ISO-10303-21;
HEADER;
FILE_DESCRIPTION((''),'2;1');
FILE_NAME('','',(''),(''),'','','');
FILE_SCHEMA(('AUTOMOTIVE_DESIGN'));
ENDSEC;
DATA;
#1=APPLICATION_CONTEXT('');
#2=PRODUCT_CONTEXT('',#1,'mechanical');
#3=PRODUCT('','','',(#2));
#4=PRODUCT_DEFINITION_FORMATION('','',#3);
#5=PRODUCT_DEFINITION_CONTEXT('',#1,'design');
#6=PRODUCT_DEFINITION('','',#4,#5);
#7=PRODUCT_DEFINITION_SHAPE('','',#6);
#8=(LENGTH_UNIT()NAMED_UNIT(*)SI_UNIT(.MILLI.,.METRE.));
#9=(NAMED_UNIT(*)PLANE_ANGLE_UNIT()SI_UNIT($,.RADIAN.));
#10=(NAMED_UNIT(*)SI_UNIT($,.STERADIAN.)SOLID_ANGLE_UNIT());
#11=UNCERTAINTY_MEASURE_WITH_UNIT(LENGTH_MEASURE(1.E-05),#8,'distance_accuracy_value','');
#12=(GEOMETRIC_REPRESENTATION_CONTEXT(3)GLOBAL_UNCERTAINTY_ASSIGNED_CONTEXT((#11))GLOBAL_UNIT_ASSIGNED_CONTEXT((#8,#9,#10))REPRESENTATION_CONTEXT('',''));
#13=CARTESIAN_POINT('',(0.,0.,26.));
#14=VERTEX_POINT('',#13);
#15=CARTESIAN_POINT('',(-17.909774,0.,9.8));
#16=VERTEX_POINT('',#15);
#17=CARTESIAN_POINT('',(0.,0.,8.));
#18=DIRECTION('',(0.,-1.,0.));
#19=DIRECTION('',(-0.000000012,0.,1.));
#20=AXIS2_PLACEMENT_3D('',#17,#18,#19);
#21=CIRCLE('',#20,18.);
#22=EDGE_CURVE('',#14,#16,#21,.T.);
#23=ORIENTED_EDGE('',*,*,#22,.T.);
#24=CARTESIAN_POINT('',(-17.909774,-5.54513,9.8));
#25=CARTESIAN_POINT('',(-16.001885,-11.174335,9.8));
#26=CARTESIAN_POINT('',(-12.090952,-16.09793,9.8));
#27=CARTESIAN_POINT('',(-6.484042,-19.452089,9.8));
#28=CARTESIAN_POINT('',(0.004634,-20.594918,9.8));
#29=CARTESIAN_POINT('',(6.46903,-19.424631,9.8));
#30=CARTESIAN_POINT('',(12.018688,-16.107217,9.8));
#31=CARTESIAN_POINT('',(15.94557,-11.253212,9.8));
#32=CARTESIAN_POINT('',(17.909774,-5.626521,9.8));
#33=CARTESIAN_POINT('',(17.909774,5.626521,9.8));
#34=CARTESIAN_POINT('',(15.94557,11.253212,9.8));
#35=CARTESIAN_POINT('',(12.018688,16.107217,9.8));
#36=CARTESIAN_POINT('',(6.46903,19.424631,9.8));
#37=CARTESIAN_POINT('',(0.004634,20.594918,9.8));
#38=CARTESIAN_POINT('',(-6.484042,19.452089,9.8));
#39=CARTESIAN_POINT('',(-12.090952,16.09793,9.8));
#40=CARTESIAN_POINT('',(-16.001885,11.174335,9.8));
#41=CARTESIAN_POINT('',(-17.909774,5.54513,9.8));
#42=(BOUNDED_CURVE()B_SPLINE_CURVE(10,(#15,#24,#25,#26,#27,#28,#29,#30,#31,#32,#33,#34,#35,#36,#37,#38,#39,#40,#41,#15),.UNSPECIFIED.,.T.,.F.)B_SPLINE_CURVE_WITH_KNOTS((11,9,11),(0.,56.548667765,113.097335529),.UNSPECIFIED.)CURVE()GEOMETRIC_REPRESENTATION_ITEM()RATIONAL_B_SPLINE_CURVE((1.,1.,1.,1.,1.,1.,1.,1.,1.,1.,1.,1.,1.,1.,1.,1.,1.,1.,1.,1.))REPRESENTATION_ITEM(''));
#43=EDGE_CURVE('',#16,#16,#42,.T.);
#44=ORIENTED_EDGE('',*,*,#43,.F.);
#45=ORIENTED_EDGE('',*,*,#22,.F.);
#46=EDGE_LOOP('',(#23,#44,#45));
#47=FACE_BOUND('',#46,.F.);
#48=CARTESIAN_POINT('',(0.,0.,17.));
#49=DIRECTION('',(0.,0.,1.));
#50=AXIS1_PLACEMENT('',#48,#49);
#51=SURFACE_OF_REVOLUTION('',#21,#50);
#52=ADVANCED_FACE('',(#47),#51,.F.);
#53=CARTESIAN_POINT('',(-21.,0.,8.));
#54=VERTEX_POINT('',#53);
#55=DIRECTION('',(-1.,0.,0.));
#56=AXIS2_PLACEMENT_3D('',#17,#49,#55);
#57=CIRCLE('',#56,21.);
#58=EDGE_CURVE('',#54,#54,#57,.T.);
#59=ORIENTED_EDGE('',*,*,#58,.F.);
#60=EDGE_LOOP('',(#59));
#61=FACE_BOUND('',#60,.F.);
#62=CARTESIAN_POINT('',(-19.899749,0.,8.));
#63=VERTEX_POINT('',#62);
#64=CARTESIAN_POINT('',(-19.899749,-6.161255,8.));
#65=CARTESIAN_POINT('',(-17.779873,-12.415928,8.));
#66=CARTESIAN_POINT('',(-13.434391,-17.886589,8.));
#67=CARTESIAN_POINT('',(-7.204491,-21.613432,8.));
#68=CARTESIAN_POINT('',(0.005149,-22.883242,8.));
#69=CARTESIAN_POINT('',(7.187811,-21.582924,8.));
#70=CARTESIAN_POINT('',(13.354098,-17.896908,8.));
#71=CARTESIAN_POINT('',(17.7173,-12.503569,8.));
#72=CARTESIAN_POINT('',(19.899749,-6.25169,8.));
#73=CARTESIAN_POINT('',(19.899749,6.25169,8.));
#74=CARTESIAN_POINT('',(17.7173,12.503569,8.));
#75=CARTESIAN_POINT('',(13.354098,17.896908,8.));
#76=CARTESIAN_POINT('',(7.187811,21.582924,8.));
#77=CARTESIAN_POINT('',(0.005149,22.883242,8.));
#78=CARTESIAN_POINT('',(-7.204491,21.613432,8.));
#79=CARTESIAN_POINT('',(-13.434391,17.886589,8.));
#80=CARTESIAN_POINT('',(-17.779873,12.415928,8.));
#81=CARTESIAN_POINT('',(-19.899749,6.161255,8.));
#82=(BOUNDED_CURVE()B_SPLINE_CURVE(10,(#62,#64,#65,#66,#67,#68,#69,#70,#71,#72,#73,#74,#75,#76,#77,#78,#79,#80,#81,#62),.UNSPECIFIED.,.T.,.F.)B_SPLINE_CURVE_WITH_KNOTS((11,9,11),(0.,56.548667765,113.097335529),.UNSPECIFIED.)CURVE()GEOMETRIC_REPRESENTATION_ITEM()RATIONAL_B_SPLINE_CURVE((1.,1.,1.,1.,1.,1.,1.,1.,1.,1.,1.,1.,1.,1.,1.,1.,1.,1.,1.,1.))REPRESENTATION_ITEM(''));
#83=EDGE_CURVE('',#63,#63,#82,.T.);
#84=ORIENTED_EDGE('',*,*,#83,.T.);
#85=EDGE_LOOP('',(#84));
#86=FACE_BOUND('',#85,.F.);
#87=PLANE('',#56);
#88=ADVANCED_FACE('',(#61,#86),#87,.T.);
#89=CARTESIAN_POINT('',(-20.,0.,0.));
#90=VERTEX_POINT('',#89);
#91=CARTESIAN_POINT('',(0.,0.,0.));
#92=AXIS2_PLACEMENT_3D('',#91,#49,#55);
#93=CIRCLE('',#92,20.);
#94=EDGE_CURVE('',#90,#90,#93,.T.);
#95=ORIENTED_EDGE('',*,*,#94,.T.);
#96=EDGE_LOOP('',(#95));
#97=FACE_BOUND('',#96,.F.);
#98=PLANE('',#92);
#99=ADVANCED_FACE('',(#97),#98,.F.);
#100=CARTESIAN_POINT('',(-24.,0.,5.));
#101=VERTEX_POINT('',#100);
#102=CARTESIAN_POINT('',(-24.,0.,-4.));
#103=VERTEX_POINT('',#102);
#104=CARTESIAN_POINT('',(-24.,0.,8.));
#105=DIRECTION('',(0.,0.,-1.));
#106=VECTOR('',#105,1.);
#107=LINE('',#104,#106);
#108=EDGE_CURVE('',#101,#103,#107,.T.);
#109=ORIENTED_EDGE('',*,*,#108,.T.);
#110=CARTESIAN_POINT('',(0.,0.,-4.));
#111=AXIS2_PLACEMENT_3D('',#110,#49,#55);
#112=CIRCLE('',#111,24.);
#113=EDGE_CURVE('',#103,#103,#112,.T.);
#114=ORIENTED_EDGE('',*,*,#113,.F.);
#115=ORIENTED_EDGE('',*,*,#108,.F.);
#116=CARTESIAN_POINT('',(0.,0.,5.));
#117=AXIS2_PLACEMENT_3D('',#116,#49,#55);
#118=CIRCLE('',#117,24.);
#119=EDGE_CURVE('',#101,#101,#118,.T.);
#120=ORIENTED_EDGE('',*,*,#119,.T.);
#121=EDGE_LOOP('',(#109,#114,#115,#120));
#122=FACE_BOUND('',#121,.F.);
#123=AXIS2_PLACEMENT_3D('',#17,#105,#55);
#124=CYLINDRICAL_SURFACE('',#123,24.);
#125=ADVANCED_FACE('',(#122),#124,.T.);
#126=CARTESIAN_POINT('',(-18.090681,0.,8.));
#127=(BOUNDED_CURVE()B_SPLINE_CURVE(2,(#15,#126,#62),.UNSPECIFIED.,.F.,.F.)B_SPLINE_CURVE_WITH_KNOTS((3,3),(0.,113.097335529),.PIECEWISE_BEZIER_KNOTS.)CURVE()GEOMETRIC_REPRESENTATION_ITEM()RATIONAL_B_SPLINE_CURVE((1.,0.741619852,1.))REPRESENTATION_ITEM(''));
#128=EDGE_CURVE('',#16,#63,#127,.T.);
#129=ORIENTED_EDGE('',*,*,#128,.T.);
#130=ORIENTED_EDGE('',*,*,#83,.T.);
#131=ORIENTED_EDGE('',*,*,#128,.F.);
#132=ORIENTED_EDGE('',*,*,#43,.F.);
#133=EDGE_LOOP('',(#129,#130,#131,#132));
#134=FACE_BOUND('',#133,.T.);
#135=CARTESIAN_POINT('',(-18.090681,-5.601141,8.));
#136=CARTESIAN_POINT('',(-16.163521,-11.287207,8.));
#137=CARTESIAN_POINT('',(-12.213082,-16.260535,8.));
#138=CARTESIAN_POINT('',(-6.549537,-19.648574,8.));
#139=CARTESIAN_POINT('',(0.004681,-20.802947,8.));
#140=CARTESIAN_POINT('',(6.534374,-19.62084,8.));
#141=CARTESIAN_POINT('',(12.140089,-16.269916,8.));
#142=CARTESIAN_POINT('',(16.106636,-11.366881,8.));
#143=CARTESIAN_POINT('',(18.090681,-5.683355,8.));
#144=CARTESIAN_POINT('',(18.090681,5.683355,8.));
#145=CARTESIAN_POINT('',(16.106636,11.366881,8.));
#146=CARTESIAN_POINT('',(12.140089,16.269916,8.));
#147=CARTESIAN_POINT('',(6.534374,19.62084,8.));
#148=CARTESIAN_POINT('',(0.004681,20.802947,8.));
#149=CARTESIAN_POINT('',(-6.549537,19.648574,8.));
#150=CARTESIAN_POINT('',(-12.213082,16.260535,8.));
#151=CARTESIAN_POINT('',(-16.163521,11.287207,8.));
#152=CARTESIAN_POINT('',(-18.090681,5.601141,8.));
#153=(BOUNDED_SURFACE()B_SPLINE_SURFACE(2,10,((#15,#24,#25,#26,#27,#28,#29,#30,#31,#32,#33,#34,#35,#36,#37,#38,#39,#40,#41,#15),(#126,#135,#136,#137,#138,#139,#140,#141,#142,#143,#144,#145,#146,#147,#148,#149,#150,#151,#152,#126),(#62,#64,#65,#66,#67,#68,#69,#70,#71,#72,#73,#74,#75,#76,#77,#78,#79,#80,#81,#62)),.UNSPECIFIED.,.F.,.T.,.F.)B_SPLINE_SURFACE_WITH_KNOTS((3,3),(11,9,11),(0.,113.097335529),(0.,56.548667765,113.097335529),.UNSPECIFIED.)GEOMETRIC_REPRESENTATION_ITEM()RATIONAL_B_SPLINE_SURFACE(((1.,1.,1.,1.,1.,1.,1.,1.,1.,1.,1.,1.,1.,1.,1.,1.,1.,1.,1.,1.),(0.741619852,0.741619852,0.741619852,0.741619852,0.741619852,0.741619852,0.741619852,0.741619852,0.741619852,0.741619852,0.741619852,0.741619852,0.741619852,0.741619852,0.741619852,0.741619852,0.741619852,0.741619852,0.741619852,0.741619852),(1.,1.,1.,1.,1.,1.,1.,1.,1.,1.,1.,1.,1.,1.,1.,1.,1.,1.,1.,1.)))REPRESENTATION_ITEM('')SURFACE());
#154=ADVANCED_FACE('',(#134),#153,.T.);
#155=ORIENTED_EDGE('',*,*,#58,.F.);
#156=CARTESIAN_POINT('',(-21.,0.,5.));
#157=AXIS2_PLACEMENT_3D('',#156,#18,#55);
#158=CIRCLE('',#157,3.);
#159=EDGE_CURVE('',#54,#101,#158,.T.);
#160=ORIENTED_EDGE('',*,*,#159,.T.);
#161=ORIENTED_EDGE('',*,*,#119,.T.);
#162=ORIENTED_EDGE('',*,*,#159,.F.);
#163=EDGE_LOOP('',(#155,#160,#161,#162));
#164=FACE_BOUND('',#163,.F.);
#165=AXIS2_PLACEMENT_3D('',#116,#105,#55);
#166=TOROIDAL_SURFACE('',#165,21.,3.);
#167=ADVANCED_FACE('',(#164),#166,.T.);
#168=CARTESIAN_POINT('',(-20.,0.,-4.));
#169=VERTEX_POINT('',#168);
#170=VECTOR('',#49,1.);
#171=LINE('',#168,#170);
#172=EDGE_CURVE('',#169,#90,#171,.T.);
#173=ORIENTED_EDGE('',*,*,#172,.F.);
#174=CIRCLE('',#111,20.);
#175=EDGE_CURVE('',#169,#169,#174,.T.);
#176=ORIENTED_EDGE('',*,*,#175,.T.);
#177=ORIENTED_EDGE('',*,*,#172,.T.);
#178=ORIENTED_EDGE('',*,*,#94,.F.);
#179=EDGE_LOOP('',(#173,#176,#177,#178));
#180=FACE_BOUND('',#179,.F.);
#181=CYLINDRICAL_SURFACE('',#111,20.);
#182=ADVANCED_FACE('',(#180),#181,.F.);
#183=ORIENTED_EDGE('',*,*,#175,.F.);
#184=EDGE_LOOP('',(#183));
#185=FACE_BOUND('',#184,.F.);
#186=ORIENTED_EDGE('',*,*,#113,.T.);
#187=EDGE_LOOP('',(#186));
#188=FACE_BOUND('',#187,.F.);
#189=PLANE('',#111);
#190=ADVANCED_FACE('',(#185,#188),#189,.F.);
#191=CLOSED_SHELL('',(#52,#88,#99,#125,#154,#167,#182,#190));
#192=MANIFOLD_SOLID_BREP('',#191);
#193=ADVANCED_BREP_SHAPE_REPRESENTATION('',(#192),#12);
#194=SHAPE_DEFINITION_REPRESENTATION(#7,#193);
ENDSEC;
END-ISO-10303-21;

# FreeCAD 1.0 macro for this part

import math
import FreeCAD as App
import Part
import Sketcher
Q = App.Units.Quantity


def edges_at(feature, points):
    """Names of the edges that pass closest to the given points."""
    edges = feature.Shape.Edges
    near = lambda p: min(range(len(edges)), key=lambda i: edges[i].distToShape(Part.Vertex(*p))[0])
    return sorted({f"Edge{near(p) + 1}" for p in points})

doc = App.newDocument("Part")
params = doc.addObject("Spreadsheet::Sheet", "Params")
for row, (alias, value) in enumerate([
    ("sketch1_radius", "18 mm"),
    ("sketch1_width", "20 mm"),
    ("sketch1_width2", "6 mm"),
    ("sketch1_height", "26 mm"),
    ("sketch1_height2", "12 mm"),
    ("revolution_angle", "360 deg"),
    ("fillet_radius", "2 mm"),
    ("fillet2_radius", "3 mm"),
], start=1):
    params.set(f"A{row}", alias)
    params.set(f"B{row}", "=" + value)
    params.setAlias(f"B{row}", alias)

body = doc.addObject("PartDesign::Body", "Body")

# Sketch on XZ plane
sketch1 = body.newObject("Sketcher::SketchObject", "Sketch")
sketch1.AttachmentSupport = (doc.getObject("XZ_Plane"), [""])
sketch1.MapMode = "FlatFace"
sketch1.addGeometry([
    Part.LineSegment(App.Vector(-20, 0, 0), App.Vector(0, 0, 0)),  # 0
    Part.LineSegment(App.Vector(0, 0, 0), App.Vector(0, 26, 0)),  # 1
    Part.ArcOfCircle(Part.Circle(App.Vector(0, 8, 0), App.Vector(0, 0, 1), 18), math.radians(90.000001), math.radians(179.999999)),  # 2
    Part.LineSegment(App.Vector(-18, 8, 0), App.Vector(-24, 8, 0)),  # 3
    Part.LineSegment(App.Vector(-24, 8, 0), App.Vector(-24, -4, 0)),  # 4
    Part.LineSegment(App.Vector(-24, -4, 0), App.Vector(-20, -4, 0)),  # 5
    Part.LineSegment(App.Vector(-20, -4, 0), App.Vector(-20, 0, 0)),  # 6
], False)
sketch1.addConstraint([
    Sketcher.Constraint("Coincident", 0, 2, 1, 1),
    Sketcher.Constraint("Coincident", 1, 2, 2, 1),
    Sketcher.Constraint("Coincident", 2, 2, 3, 1),
    Sketcher.Constraint("Coincident", 3, 2, 4, 1),
    Sketcher.Constraint("Coincident", 4, 2, 5, 1),
    Sketcher.Constraint("Coincident", 5, 2, 6, 1),
    Sketcher.Constraint("Coincident", 6, 2, 0, 1),
    Sketcher.Constraint("Horizontal", 0),
    Sketcher.Constraint("Vertical", 1),
    Sketcher.Constraint("Horizontal", 3),
    Sketcher.Constraint("Vertical", 4),
    Sketcher.Constraint("Horizontal", 5),
    Sketcher.Constraint("Vertical", 6),
    Sketcher.Constraint("Coincident", 0, 2, -1, 1),
    Sketcher.Constraint("PointOnObject", 2, 3, -2),
    Sketcher.Constraint("Equal", 5, 6),
    Sketcher.Constraint("Radius", 2, Q("18 mm")),
    Sketcher.Constraint("DistanceX", 0, 1, 0, 2, Q("20 mm")),
    Sketcher.Constraint("DistanceX", 3, 2, 3, 1, Q("6 mm")),
    Sketcher.Constraint("DistanceY", 1, 1, 1, 2, Q("26 mm")),
    Sketcher.Constraint("DistanceY", 4, 2, 4, 1, Q("12 mm")),
])
sketch1.setExpression("Constraints[16]", "Params.sketch1_radius")
sketch1.setExpression("Constraints[17]", "Params.sketch1_width")
sketch1.setExpression("Constraints[18]", "Params.sketch1_width2")
sketch1.setExpression("Constraints[19]", "Params.sketch1_height")
sketch1.setExpression("Constraints[20]", "Params.sketch1_height2")
revolution = body.newObject("PartDesign::Revolution", "Revolution")
revolution.Profile = sketch1
revolution.ReferenceAxis = (sketch1, ["V_Axis"])
revolution.setExpression("Angle", "Params.revolution_angle")
doc.recompute()

fillet = body.newObject("PartDesign::Fillet", "Fillet")
fillet.Base = (revolution, edges_at(revolution, [(18, 0, 8)]))
fillet.setExpression("Radius", "Params.fillet_radius")
doc.recompute()

fillet2 = body.newObject("PartDesign::Fillet", "Fillet001")
fillet2.Base = (fillet, edges_at(fillet, [(24, 0, 8)]))
fillet2.setExpression("Radius", "Params.fillet2_radius")

doc.recompute()
